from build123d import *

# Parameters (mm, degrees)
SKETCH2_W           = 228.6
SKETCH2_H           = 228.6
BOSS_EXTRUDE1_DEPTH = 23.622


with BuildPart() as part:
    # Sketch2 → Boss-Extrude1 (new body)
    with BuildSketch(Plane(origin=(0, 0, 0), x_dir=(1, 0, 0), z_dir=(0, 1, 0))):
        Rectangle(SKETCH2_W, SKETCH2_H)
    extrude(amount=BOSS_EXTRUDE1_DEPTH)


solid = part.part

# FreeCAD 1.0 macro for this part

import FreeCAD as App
import Part
import Sketcher

V = App.Vector
Q = App.Units.Quantity


def add_polygon(sketch, points):
    """Adds a closed chain of lines whose ends are joined by coincident constraints."""
    first, n = sketch.GeometryCount, len(points)
    for a, b in zip(points, points[1:] + points[:1]):
        sketch.addGeometry(Part.LineSegment(App.Vector(*a, 0), App.Vector(*b, 0)), False)
    for i in range(n):
        sketch.addConstraint(Sketcher.Constraint("Coincident", first + i, 2, first + (i + 1) % n, 1))

doc = App.newDocument("Part")
params = doc.addObject("Spreadsheet::Sheet", "Params")
for row, (alias, value) in enumerate([
    ("sketch1_width", "9 in"),
    ("pad1_length", "0.93 in"),
], start=1):
    params.set(f"A{row}", alias)
    params.set(f"B{row}", "=" + value)
    params.setAlias(f"B{row}", alias)

body = doc.addObject("PartDesign::Body", "Body")

# Sketch on XZ plane
sketch1 = body.newObject("Sketcher::SketchObject", "Sketch")
sketch1.AttachmentSupport = (doc.getObject("XZ_Plane"), [""])
sketch1.MapMode = "FlatFace"
add_polygon(sketch1, [(-114, -114), (-114, 114), (114, 114), (114, -114)])  # lines 0-3
sketch1.addConstraint(Sketcher.Constraint("Vertical", 0))
sketch1.addConstraint(Sketcher.Constraint("Horizontal", 1))
sketch1.addConstraint(Sketcher.Constraint("Vertical", 2))
sketch1.addConstraint(Sketcher.Constraint("Horizontal", 3))
sketch1.addConstraint(Sketcher.Constraint("Symmetric", 0, 2, 2, 2, -1, 1))
sketch1.addConstraint(Sketcher.Constraint("Equal", 3, 0))
sketch1.addConstraint(Sketcher.Constraint("DistanceX", 1, 1, 1, 2, Q("9 in")))
sketch1.setExpression("Constraints[10]", "Params.sketch1_width")
pad1 = body.newObject("PartDesign::Pad", "Pad")
pad1.Profile = sketch1
pad1.setExpression("Length", "Params.pad1_length")
pad1.Reversed = True

doc.recompute()
